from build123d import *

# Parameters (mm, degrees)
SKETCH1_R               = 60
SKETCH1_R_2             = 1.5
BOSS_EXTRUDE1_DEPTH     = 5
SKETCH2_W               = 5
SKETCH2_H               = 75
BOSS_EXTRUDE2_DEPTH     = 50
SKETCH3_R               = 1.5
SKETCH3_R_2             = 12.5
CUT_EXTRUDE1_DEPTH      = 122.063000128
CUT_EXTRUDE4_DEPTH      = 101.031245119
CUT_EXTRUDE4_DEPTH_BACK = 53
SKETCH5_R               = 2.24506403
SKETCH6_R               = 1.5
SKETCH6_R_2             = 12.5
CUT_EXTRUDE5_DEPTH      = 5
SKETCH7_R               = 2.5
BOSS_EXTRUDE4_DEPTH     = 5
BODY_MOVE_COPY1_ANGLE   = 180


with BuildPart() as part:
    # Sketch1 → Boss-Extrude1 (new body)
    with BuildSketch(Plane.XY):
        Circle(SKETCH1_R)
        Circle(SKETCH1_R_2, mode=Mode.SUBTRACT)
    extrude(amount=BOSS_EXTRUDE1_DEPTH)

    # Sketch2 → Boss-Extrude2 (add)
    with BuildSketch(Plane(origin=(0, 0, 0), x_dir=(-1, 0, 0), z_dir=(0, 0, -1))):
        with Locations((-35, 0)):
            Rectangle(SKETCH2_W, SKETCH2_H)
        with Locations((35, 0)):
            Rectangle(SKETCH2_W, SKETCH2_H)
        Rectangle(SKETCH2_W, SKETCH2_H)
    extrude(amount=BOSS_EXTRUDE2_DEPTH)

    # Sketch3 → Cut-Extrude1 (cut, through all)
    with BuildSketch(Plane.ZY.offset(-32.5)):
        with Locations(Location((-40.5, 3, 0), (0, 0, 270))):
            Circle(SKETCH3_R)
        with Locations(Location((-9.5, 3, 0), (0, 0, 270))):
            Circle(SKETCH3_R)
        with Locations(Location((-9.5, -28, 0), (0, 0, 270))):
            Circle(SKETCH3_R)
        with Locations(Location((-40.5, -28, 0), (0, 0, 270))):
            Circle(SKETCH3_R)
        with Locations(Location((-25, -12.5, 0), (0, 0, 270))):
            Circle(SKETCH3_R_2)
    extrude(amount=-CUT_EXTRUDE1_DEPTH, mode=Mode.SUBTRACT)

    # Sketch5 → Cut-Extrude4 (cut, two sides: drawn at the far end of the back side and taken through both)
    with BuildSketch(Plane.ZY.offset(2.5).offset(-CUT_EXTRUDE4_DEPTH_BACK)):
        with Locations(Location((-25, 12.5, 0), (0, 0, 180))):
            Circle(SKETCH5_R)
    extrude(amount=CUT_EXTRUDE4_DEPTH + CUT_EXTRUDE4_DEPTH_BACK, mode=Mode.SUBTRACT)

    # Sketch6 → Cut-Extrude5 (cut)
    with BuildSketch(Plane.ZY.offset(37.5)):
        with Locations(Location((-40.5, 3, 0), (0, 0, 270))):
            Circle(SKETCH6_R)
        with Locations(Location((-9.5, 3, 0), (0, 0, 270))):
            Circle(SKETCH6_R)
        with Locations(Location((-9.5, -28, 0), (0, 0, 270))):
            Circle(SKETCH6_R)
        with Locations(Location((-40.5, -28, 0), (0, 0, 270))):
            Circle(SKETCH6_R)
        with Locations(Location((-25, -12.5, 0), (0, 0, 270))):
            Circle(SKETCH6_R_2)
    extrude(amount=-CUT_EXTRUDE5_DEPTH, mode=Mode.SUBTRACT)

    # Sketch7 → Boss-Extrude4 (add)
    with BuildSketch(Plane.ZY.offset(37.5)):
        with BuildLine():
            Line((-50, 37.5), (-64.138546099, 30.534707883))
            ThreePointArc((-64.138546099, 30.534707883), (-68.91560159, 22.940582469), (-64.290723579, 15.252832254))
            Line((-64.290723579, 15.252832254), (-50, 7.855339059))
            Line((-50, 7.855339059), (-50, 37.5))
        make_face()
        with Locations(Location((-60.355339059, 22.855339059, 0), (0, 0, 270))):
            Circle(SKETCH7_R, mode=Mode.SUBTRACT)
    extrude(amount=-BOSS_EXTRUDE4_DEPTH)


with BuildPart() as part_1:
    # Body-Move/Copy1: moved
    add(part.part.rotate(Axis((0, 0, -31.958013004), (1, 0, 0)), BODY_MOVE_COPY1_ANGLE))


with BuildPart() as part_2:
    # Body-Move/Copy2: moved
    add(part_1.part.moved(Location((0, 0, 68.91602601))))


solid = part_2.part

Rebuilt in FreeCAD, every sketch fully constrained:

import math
import FreeCAD as App
import Part
import Sketcher


def add_polygon(sketch, points):
    """Adds a closed chain of lines whose ends are joined by coincident constraints."""
    first, n = sketch.GeometryCount, len(points)
    for a, b in zip(points, points[1:] + points[:1]):
        sketch.addGeometry(Part.LineSegment(App.Vector(*a, 0), App.Vector(*b, 0)), False)
    for i in range(n):
        sketch.addConstraint(Sketcher.Constraint("Coincident", first + i, 2, first + (i + 1) % n, 1))

doc = App.newDocument("Part")
body = doc.addObject("PartDesign::Body", "Body")

sketch1 = doc.addObject("Sketcher::SketchObject", "Sketch")
body.addObject(sketch1)
sketch1.AttachmentSupport = (doc.XY_Plane, [""])
sketch1.MapMode = "FlatFace"
sketch1.addGeometry(Part.Circle(App.Vector(0, 0, 0), App.Vector(0, 0, 1), 60), False)
sketch1.addGeometry(Part.Circle(App.Vector(0, 0, 0), App.Vector(0, 0, 1), 1.5), False)
sketch1.addConstraint(Sketcher.Constraint("Coincident", 0, 3, -1, 1))
sketch1.addConstraint(Sketcher.Constraint("Coincident", 1, 3, -1, 1))
sketch1.addConstraint(Sketcher.Constraint("Diameter", 0, 120.0))
sketch1.addConstraint(Sketcher.Constraint("Diameter", 1, 3.0))
pad1 = doc.addObject("PartDesign::Pad", "Pad")
body.addObject(pad1)
pad1.Profile = sketch1
pad1.Length = 5

sketch2 = doc.addObject("Sketcher::SketchObject", "Sketch001")
body.addObject(sketch2)
sketch2.AttachmentSupport = (doc.XY_Plane, [""])
sketch2.MapMode = "FlatFace"
add_polygon(sketch2, [(38, 38), (38, -38), (32, -38), (32, 38)])
add_polygon(sketch2, [(-32, 38), (-32, -38), (-38, -38), (-38, 38)])
add_polygon(sketch2, [(2, 38), (2, -38), (-2, -38), (-2, 38)])
sketch2.addConstraint(Sketcher.Constraint("Vertical", 0))
sketch2.addConstraint(Sketcher.Constraint("Horizontal", 1))
sketch2.addConstraint(Sketcher.Constraint("Vertical", 2))
sketch2.addConstraint(Sketcher.Constraint("Horizontal", 3))
sketch2.addConstraint(Sketcher.Constraint("Vertical", 4))
sketch2.addConstraint(Sketcher.Constraint("Horizontal", 5))
sketch2.addConstraint(Sketcher.Constraint("Vertical", 6))
sketch2.addConstraint(Sketcher.Constraint("Horizontal", 7))
sketch2.addConstraint(Sketcher.Constraint("Vertical", 8))
sketch2.addConstraint(Sketcher.Constraint("Horizontal", 9))
sketch2.addConstraint(Sketcher.Constraint("Vertical", 10))
sketch2.addConstraint(Sketcher.Constraint("Horizontal", 11))
sketch2.addConstraint(Sketcher.Constraint("Symmetric", 2, 2, 4, 2, -1, 1))
sketch2.addConstraint(Sketcher.Constraint("Symmetric", 0, 2, 6, 2, -1, 1))
sketch2.addConstraint(Sketcher.Constraint("Symmetric", 8, 2, 10, 2, -1, 1))
sketch2.addConstraint(Sketcher.Constraint("Horizontal", 1, 2, 4, 2))
sketch2.addConstraint(Sketcher.Constraint("Horizontal", 5, 2, 8, 2))
sketch2.addConstraint(Sketcher.Constraint("Equal", 7, 9))
sketch2.addConstraint(Sketcher.Constraint("DistanceX", 1, 2, 1, 1, 5.0))
sketch2.addConstraint(Sketcher.Constraint("DistanceY", 0, 2, 0, 1, 75.0))
sketch2.addConstraint(Sketcher.Constraint("DistanceX", 4, 2, 1, 2, 65.0))
pad2 = doc.addObject("PartDesign::Pad", "Pad001")
body.addObject(pad2)
pad2.Profile = sketch2
pad2.Length = 50
pad2.Reversed = True

sketch3 = doc.addObject("Sketcher::SketchObject", "Sketch002")
body.addObject(sketch3)
sketch3.AttachmentSupport = (doc.YZ_Plane, [""])
sketch3.MapMode = "FlatFace"
sketch3.AttachmentOffset = App.Placement(App.Vector(0, 0, 32.5), App.Rotation())
sketch3.addGeometry(Part.Circle(App.Vector(3, -40.5, 0), App.Vector(0, 0, 1), 1.5), False)
sketch3.addGeometry(Part.Circle(App.Vector(3, -9.5, 0), App.Vector(0, 0, 1), 1.5), False)
sketch3.addGeometry(Part.Circle(App.Vector(-28, -9.5, 0), App.Vector(0, 0, 1), 1.5), False)
sketch3.addGeometry(Part.Circle(App.Vector(-28, -40.5, 0), App.Vector(0, 0, 1), 1.5), False)
sketch3.addGeometry(Part.Circle(App.Vector(-12.5, -25, 0), App.Vector(0, 0, 1), 12.5), False)
sketch3.addConstraint(Sketcher.Constraint("Equal", 0, 1))
sketch3.addConstraint(Sketcher.Constraint("Equal", 1, 2))
sketch3.addConstraint(Sketcher.Constraint("Equal", 2, 3))
sketch3.addConstraint(Sketcher.Constraint("Horizontal", 1, 3, 2, 3))
sketch3.addConstraint(Sketcher.Constraint("Horizontal", 0, 3, 3, 3))
sketch3.addConstraint(Sketcher.Constraint("Vertical", 0, 3, 1, 3))
sketch3.addConstraint(Sketcher.Constraint("Vertical", 2, 3, 3, 3))
sketch3.addConstraint(Sketcher.Constraint("Diameter", 0, 3.0))
sketch3.addConstraint(Sketcher.Constraint("Diameter", 4, 25.0))
sketch3.addConstraint(Sketcher.Constraint("DistanceX", -1, 1, 0, 3, 3.0))
sketch3.addConstraint(Sketcher.Constraint("DistanceX", 2, 3, -1, 1, 28.0))
sketch3.addConstraint(Sketcher.Constraint("DistanceY", 4, 3, -1, 1, 25.0))
sketch3.addConstraint(Sketcher.Constraint("DistanceY", 0, 3, 1, 3, 31.0))
sketch3.addConstraint(Sketcher.Constraint("DistanceY", 0, 3, -1, 1, 40.5))
sketch3.addConstraint(Sketcher.Constraint("DistanceX", 4, 3, -1, 1, 12.5))
pocket1 = doc.addObject("PartDesign::Pocket", "Pocket")
body.addObject(pocket1)
pocket1.Profile = sketch3
pocket1.Type = "ThroughAll"
pocket1.Reversed = True

sketch4 = doc.addObject("Sketcher::SketchObject", "Sketch003")
body.addObject(sketch4)
sketch4.AttachmentSupport = (doc.YZ_Plane, [""])
sketch4.MapMode = "FlatFace"
sketch4.AttachmentOffset = App.Placement(App.Vector(0, 0, -2.5), App.Rotation())
sketch4.addGeometry(Part.Circle(App.Vector(12.5, -25, 0), App.Vector(0, 0, 1), 2.2), False)
sketch4.addConstraint(Sketcher.Constraint("DistanceY", 0, 3, -1, 1, 25.0))
sketch4.addConstraint(Sketcher.Constraint("DistanceX", -1, 1, 0, 3, 12.5))
sketch4.addConstraint(Sketcher.Constraint("Diameter", 0, 4.490128))
pocket2 = doc.addObject("PartDesign::Pocket", "Pocket001")
body.addObject(pocket2)
pocket2.Profile = sketch4
pocket2.Type = "ThroughAll"
pocket2.Midplane = True

sketch5 = doc.addObject("Sketcher::SketchObject", "Sketch004")
body.addObject(sketch5)
sketch5.AttachmentSupport = (doc.YZ_Plane, [""])
sketch5.MapMode = "FlatFace"
sketch5.AttachmentOffset = App.Placement(App.Vector(0, 0, -37.5), App.Rotation())
sketch5.addGeometry(Part.Circle(App.Vector(3, -40.5, 0), App.Vector(0, 0, 1), 1.5), False)
sketch5.addGeometry(Part.Circle(App.Vector(3, -9.5, 0), App.Vector(0, 0, 1), 1.5), False)
sketch5.addGeometry(Part.Circle(App.Vector(-28, -9.5, 0), App.Vector(0, 0, 1), 1.5), False)
sketch5.addGeometry(Part.Circle(App.Vector(-28, -40.5, 0), App.Vector(0, 0, 1), 1.5), False)
sketch5.addGeometry(Part.Circle(App.Vector(-12.5, -25, 0), App.Vector(0, 0, 1), 12.5), False)
sketch5.addConstraint(Sketcher.Constraint("Equal", 0, 1))
sketch5.addConstraint(Sketcher.Constraint("Equal", 1, 2))
sketch5.addConstraint(Sketcher.Constraint("Equal", 2, 3))
sketch5.addConstraint(Sketcher.Constraint("Horizontal", 1, 3, 2, 3))
sketch5.addConstraint(Sketcher.Constraint("Horizontal", 0, 3, 3, 3))
sketch5.addConstraint(Sketcher.Constraint("Vertical", 0, 3, 1, 3))
sketch5.addConstraint(Sketcher.Constraint("Vertical", 2, 3, 3, 3))
sketch5.addConstraint(Sketcher.Constraint("Diameter", 0, 3.0))
sketch5.addConstraint(Sketcher.Constraint("Diameter", 4, 25.0))
sketch5.addConstraint(Sketcher.Constraint("DistanceX", -1, 1, 0, 3, 3.0))
sketch5.addConstraint(Sketcher.Constraint("DistanceX", 2, 3, -1, 1, 28.0))
sketch5.addConstraint(Sketcher.Constraint("DistanceY", 4, 3, -1, 1, 25.0))
sketch5.addConstraint(Sketcher.Constraint("DistanceY", 0, 3, 1, 3, 31.0))
sketch5.addConstraint(Sketcher.Constraint("DistanceY", 0, 3, -1, 1, 40.5))
sketch5.addConstraint(Sketcher.Constraint("DistanceX", 4, 3, -1, 1, 12.5))
pocket3 = doc.addObject("PartDesign::Pocket", "Pocket002")
body.addObject(pocket3)
pocket3.Profile = sketch5
pocket3.Length = 5
pocket3.Reversed = True

sketch6 = doc.addObject("Sketcher::SketchObject", "Sketch005")
body.addObject(sketch6)
sketch6.AttachmentSupport = (doc.YZ_Plane, [""])
sketch6.MapMode = "FlatFace"
sketch6.AttachmentOffset = App.Placement(App.Vector(0, 0, -37.5), App.Rotation())
sketch6.addGeometry(Part.LineSegment(App.Vector(37.5, -50, 0), App.Vector(30.5, -64.1, 0)), False)
sketch6.addGeometry(Part.ArcOfCircle(Part.Circle(App.Vector(22.9, -60.4, 0), App.Vector(0, 0, 1), 8.6), math.radians(-153), math.radians(-26)), False)
sketch6.addGeometry(Part.LineSegment(App.Vector(15.3, -64.3, 0), App.Vector(7.9, -50, 0)), False)
sketch6.addGeometry(Part.LineSegment(App.Vector(7.9, -50, 0), App.Vector(37.5, -50, 0)), False)
sketch6.addGeometry(Part.Circle(App.Vector(22.9, -60.4, 0), App.Vector(0, 0, 1), 2.5), False)
sketch6.addConstraint(Sketcher.Constraint("Tangent", 0, 2, 1, 2))
sketch6.addConstraint(Sketcher.Constraint("Tangent", 1, 1, 2, 1))
sketch6.addConstraint(Sketcher.Constraint("Coincident", 2, 2, 3, 1))
sketch6.addConstraint(Sketcher.Constraint("Coincident", 3, 2, 0, 1))
sketch6.addConstraint(Sketcher.Constraint("Horizontal", 3))
sketch6.addConstraint(Sketcher.Constraint("Coincident", 4, 3, 1, 3))
sketch6.addConstraint(Sketcher.Constraint("Diameter", 4, 5.0))
sketch6.addConstraint(Sketcher.Constraint("DistanceY", 2, 2, -1, 1, 50.0))
sketch6.addConstraint(Sketcher.Constraint("DistanceX", 2, 2, 1, 3, 15.0))
sketch6.addConstraint(Sketcher.Constraint("DistanceX", -1, 1, 3, 2, 37.5))
sketch6.addConstraint(Sketcher.Constraint("Radius", 1, 8.560687))
sketch6.addConstraint(Sketcher.Constraint("DistanceX", 3, 1, 3, 2, 29.644661))
sketch6.addConstraint(Sketcher.Constraint("Distance", 2, 16.091852))
pad3 = doc.addObject("PartDesign::Pad", "Pad002")
body.addObject(pad3)
pad3.Profile = sketch6
pad3.Length = 5
body2 = doc.addObject("PartDesign::Body", "Body001")
doc.recompute()

body.Placement = App.Placement(App.Vector(0, 0, -63.916026), App.Rotation(App.Vector(1, 0, 0), 180))
boolean = doc.addObject("PartDesign::Boolean", "Boolean")
body2.addObject(boolean)
boolean.Type = "Fuse"
boolean.addObjects([body])
body3 = doc.addObject("PartDesign::Body", "Body002")
doc.recompute()

body2.Placement = App.Placement(App.Vector(0, 0, 68.916026), App.Rotation(App.Vector(0, 0, 1), 0))
boolean2 = doc.addObject("PartDesign::Boolean", "Boolean001")
body3.addObject(boolean2)
boolean2.Type = "Fuse"
boolean2.addObjects([body2])

doc.recompute()
